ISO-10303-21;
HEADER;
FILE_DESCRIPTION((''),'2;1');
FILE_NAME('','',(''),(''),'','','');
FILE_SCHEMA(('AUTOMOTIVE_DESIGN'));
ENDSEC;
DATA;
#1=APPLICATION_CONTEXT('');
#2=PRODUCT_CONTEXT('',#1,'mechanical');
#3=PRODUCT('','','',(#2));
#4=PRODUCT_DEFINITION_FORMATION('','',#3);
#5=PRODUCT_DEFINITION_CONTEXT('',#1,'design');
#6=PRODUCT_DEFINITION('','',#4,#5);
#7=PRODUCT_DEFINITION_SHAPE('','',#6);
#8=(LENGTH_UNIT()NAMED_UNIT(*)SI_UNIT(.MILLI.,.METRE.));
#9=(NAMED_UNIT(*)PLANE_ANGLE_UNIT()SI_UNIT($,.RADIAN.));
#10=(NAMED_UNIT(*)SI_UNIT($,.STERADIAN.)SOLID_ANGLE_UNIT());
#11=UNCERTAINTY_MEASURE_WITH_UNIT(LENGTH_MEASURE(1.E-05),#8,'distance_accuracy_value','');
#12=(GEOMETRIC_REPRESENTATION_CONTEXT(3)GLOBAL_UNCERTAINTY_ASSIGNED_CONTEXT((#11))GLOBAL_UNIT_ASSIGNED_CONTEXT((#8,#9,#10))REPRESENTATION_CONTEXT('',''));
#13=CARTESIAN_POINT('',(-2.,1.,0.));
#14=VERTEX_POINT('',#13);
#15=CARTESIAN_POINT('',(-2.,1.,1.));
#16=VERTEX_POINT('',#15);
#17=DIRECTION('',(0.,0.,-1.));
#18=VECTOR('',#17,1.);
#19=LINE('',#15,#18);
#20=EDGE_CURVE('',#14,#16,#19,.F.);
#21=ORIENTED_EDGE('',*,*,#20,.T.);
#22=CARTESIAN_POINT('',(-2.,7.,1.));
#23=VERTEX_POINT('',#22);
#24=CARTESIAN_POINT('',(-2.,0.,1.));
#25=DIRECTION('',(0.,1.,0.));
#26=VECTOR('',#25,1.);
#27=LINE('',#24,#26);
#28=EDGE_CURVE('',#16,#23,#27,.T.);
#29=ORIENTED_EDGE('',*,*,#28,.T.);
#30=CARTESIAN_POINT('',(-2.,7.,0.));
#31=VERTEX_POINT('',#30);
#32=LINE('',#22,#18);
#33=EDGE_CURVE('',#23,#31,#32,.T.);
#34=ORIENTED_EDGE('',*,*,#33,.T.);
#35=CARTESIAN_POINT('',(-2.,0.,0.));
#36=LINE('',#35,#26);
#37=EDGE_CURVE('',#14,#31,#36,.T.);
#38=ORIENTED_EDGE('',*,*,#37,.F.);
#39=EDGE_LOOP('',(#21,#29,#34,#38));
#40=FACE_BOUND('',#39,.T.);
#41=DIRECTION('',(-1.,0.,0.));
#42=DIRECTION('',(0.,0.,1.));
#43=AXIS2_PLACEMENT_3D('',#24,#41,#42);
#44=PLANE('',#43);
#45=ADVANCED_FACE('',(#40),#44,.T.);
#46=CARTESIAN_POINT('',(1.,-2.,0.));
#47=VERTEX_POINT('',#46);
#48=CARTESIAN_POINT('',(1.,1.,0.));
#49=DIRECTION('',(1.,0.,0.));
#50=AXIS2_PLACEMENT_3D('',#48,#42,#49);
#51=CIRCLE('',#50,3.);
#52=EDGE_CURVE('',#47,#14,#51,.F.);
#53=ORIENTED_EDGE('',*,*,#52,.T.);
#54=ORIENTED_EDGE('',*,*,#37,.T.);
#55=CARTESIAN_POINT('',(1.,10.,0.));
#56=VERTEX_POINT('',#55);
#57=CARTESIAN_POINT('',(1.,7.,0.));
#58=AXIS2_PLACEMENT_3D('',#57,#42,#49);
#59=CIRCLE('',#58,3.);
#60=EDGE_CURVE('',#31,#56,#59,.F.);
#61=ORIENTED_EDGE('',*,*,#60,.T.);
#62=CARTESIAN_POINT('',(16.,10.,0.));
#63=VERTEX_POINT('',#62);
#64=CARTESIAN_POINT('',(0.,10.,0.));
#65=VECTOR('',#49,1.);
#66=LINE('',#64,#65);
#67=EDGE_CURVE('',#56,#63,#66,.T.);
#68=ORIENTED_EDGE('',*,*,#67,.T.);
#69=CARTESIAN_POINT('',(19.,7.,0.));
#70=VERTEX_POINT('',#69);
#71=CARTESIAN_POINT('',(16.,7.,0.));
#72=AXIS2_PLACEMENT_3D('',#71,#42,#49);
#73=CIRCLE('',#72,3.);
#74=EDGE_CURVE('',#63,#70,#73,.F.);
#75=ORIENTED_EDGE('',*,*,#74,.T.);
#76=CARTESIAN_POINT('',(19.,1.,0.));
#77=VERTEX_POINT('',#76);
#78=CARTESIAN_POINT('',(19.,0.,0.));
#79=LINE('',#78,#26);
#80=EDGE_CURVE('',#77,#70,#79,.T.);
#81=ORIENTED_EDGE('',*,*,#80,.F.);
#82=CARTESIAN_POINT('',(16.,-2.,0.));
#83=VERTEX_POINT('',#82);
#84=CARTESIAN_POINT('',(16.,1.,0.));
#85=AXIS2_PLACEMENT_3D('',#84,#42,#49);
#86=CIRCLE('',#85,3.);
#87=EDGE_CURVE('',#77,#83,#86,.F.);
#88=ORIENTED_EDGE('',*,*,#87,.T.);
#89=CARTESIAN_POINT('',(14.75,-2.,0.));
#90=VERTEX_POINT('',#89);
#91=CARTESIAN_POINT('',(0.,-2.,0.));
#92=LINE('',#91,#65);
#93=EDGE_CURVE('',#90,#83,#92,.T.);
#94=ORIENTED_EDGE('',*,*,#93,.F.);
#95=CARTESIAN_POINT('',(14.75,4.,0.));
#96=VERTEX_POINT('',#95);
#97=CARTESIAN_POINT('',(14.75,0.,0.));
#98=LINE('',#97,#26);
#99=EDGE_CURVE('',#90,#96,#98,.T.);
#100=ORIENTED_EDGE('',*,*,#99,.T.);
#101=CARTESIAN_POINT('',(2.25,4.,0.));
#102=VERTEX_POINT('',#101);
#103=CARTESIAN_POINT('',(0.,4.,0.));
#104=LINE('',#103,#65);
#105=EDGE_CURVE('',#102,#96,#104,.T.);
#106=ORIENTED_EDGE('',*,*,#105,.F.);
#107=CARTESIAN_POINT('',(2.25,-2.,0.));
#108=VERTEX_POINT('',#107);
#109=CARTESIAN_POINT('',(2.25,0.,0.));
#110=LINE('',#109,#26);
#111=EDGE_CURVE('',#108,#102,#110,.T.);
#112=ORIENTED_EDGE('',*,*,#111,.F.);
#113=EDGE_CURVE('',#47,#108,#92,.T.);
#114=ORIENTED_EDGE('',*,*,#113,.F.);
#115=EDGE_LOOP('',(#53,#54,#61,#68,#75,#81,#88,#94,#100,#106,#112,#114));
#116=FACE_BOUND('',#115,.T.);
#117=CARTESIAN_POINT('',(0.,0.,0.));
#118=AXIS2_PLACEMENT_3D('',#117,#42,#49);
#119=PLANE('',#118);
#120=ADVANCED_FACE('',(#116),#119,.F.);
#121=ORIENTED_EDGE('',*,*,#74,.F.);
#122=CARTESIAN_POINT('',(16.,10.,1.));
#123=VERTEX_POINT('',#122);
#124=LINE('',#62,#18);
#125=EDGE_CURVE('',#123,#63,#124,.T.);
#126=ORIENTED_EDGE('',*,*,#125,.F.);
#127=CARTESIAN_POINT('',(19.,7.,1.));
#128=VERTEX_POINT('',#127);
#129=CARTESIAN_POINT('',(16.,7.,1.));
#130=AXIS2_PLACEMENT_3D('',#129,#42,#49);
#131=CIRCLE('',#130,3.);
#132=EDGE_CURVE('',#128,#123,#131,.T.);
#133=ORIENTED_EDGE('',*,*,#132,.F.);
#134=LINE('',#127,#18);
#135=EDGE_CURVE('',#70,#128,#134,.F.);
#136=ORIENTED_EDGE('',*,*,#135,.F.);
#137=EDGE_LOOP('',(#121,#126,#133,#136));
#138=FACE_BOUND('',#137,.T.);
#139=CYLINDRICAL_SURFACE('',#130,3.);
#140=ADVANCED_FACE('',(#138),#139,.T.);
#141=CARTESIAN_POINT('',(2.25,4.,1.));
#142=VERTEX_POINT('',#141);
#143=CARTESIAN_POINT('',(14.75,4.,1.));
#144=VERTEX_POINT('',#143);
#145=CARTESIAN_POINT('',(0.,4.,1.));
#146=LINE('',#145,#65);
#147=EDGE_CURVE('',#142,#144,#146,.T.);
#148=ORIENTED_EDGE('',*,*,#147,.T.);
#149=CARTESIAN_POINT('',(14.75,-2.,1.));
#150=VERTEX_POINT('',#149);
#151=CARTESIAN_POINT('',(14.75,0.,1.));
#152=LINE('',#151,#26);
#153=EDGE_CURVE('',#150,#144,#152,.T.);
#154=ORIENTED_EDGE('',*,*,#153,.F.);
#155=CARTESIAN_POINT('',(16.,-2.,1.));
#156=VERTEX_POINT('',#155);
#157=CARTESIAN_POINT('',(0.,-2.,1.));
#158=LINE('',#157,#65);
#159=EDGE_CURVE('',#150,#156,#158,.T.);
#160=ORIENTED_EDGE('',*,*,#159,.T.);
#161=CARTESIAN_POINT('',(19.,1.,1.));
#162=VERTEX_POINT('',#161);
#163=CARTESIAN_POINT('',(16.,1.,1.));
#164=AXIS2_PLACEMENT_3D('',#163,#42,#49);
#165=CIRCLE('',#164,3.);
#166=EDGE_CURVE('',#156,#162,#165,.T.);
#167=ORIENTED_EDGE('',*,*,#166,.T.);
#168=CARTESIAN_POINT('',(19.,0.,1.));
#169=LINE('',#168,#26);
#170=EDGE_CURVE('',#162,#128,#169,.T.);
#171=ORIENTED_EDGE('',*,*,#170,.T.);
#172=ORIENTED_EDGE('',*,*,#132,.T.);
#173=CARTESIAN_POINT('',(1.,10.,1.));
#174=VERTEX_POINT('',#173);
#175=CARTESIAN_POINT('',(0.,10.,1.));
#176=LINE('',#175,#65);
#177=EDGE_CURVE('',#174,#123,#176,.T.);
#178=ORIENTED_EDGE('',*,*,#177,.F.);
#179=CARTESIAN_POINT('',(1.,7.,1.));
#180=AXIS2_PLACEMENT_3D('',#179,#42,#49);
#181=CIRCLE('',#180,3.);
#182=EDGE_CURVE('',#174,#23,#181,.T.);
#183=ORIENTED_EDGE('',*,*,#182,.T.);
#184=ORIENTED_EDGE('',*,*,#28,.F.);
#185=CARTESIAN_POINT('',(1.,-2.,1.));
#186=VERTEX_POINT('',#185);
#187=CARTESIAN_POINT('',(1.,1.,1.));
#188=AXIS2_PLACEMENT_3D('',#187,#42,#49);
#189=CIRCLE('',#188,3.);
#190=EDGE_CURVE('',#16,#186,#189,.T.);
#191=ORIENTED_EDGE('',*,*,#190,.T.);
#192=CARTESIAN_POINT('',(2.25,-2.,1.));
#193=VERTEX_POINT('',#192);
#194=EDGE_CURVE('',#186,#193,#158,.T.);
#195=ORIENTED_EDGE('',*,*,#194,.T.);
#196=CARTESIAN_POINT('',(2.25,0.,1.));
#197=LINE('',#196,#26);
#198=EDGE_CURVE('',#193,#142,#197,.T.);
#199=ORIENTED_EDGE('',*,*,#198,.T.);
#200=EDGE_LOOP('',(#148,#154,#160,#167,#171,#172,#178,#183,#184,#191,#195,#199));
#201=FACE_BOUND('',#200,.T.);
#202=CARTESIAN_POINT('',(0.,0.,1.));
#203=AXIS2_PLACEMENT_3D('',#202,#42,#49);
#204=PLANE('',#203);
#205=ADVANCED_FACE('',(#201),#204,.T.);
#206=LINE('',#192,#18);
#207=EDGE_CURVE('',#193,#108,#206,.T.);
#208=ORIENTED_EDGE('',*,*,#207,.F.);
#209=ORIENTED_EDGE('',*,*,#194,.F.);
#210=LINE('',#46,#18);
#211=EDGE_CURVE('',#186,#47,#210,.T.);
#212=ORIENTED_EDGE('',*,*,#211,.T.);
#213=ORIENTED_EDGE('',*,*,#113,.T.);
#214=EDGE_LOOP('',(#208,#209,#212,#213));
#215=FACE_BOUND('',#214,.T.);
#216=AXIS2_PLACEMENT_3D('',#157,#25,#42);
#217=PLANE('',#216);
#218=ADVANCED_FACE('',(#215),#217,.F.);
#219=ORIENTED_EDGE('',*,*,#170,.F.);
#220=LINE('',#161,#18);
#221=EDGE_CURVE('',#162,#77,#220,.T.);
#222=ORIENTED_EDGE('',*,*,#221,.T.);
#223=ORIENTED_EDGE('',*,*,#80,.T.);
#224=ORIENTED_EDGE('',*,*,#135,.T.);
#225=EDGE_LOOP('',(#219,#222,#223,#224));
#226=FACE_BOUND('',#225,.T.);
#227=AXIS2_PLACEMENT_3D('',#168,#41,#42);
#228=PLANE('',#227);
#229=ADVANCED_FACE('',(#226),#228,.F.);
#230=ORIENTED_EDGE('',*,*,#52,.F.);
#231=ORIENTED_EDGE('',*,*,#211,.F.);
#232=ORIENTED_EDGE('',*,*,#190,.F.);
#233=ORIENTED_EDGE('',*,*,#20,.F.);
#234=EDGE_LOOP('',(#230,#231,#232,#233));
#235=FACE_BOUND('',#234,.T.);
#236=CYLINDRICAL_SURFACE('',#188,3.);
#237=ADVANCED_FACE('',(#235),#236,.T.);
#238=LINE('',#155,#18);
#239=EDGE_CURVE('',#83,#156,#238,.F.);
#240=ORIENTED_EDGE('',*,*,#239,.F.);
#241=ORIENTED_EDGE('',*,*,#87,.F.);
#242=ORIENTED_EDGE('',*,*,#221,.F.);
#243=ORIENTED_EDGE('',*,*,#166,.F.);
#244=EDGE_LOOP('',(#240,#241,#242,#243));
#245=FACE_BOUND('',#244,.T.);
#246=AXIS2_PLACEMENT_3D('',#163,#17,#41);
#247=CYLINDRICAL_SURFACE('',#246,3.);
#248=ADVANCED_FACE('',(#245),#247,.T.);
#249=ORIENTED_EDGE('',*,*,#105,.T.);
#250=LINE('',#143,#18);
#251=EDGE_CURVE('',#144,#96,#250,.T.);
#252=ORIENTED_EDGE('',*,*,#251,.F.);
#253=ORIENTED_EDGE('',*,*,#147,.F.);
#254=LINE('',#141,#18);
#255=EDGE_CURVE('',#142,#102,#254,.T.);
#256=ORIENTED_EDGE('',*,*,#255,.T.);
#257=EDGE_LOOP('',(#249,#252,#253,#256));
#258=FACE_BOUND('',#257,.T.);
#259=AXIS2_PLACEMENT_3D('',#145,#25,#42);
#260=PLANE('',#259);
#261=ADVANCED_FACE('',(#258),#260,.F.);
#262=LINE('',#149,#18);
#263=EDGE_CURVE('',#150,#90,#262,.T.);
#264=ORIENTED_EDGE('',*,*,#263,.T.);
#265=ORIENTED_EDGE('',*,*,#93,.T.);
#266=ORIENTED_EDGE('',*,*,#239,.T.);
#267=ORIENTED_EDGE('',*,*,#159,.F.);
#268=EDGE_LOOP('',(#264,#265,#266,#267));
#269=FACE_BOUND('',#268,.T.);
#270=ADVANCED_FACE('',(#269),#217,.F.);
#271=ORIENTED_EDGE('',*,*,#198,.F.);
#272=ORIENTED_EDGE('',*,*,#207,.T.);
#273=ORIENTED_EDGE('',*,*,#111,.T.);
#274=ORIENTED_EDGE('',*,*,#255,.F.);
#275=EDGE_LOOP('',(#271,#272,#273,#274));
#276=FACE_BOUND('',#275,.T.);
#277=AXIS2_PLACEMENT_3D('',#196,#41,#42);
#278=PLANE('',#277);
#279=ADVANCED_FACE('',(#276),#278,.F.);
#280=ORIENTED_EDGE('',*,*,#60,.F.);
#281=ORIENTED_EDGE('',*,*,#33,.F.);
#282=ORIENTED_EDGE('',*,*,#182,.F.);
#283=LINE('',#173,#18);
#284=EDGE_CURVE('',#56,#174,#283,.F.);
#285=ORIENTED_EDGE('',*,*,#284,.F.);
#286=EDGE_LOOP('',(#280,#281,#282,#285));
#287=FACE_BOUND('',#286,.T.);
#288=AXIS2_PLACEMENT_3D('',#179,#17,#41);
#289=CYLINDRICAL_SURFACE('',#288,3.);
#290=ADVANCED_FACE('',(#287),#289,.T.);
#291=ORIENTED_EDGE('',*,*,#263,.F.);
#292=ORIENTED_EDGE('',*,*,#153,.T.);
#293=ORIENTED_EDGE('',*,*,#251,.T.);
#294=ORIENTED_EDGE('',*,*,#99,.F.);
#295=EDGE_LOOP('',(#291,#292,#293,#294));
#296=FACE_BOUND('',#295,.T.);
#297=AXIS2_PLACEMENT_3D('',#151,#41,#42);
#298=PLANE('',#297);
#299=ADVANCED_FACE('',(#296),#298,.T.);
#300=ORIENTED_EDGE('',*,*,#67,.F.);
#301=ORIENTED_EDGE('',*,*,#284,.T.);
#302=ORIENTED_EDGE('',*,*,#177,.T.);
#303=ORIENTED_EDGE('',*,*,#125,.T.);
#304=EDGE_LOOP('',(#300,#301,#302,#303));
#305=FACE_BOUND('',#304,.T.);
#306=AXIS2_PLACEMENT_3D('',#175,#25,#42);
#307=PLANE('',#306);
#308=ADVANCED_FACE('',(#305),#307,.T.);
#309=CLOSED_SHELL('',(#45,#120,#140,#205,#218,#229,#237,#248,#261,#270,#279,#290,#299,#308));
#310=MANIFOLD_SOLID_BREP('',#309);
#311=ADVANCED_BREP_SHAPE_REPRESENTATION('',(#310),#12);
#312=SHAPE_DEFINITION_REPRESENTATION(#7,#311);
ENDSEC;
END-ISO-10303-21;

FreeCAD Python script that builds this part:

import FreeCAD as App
import Part
import Sketcher


def edges_at(feature, points):
    """Names of the edges that pass closest to the given points."""
    edges = feature.Shape.Edges
    near = lambda p: min(range(len(edges)), key=lambda i: edges[i].distToShape(Part.Vertex(*p))[0])
    return sorted({f"Edge{near(p) + 1}" for p in points})

doc = App.newDocument("Part")
body = doc.addObject("PartDesign::Body", "Body")

sketch1 = body.newObject("Sketcher::SketchObject", "Sketch")
sketch1.AttachmentSupport = (doc.getObject("XY_Plane"), [""])
sketch1.MapMode = "FlatFace"
sketch1.addGeometry([
    Part.LineSegment(App.Vector(19, 10, 0), App.Vector(-2, 10, 0)),
    Part.LineSegment(App.Vector(-2, 10, 0), App.Vector(-2, -2, 0)),
    Part.LineSegment(App.Vector(-2, -2, 0), App.Vector(2.2, -2, 0)),
    Part.LineSegment(App.Vector(2.2, -2, 0), App.Vector(2.2, 4, 0)),
    Part.LineSegment(App.Vector(2.2, 4, 0), App.Vector(14.8, 4, 0)),
    Part.LineSegment(App.Vector(14.8, 4, 0), App.Vector(14.8, -2, 0)),
    Part.LineSegment(App.Vector(14.8, -2, 0), App.Vector(19, -2, 0)),
    Part.LineSegment(App.Vector(19, -2, 0), App.Vector(19, 10, 0)),
], False)
sketch1.addConstraint([
    Sketcher.Constraint("Coincident", 0, 2, 1, 1),
    Sketcher.Constraint("Coincident", 1, 2, 2, 1),
    Sketcher.Constraint("Coincident", 2, 2, 3, 1),
    Sketcher.Constraint("Coincident", 3, 2, 4, 1),
    Sketcher.Constraint("Coincident", 4, 2, 5, 1),
    Sketcher.Constraint("Coincident", 5, 2, 6, 1),
    Sketcher.Constraint("Coincident", 6, 2, 7, 1),
    Sketcher.Constraint("Coincident", 7, 2, 0, 1),
    Sketcher.Constraint("Horizontal", 0),
    Sketcher.Constraint("Vertical", 1),
    Sketcher.Constraint("Horizontal", 2),
    Sketcher.Constraint("Vertical", 3),
    Sketcher.Constraint("Horizontal", 4),
    Sketcher.Constraint("Vertical", 5),
    Sketcher.Constraint("Horizontal", 6),
    Sketcher.Constraint("Vertical", 7),
    Sketcher.Constraint("Horizontal", 2, 2, 5, 2),
    Sketcher.Constraint("Equal", 2, 6),
    Sketcher.Constraint("DistanceX", 0, 2, 0, 1, 21.0),
    Sketcher.Constraint("DistanceY", 1, 2, 1, 1, 12.0),
    Sketcher.Constraint("DistanceY", 3, 1, 3, 2, 6.0),
    Sketcher.Constraint("DistanceX", 4, 1, 4, 2, 12.5),
    Sketcher.Constraint("DistanceX", 0, 2, -1, 1, 2.0),
    Sketcher.Constraint("DistanceY", -1, 1, 0, 2, 10.0),
])
pad1 = body.newObject("PartDesign::Pad", "Pad")
pad1.Profile = sketch1
pad1.Length = 1
doc.recompute()

fillet = body.newObject("PartDesign::Fillet", "Fillet")
fillet.Base = (pad1, edges_at(pad1, [
    (-2, -2, 0.5),
    (-2, 10, 0.5),
    (19, 10, 0.5),
    (19, -2, 0.5),
]))
fillet.Radius = 3

doc.recompute()
